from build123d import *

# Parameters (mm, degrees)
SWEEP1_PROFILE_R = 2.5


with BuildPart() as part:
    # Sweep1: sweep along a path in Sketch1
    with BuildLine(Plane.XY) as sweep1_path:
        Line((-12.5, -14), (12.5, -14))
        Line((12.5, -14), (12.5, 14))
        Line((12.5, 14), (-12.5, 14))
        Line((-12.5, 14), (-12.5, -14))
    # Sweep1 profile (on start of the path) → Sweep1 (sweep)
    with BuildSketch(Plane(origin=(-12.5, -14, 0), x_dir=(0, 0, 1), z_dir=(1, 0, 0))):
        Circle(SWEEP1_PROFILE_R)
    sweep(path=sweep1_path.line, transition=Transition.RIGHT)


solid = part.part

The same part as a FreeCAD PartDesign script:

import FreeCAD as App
import Part
import Sketcher
from FreeCAD import Vector

doc = App.newDocument("Part")
params = doc.addObject("Spreadsheet::Sheet", "Params")
for row, (alias, value) in enumerate([
    ("sketch1_diameter", "5 mm"),
    ("sketch2_width", "25 mm"),
    ("sketch2_height", "28 mm"),
], start=1):
    params.set(f"A{row}", alias)
    params.set(f"B{row}", "=" + value)
    params.setAlias(f"B{row}", alias)

body = doc.addObject("PartDesign::Body", "Body")

# Sketch on YZ plane
sketch1 = body.newObject("Sketcher::SketchObject", "Sketch")
sketch1.AttachmentSupport = (doc.getObject("YZ_Plane"), [""])
sketch1.MapMode = "FlatFace"
sketch1.AttachmentOffset = App.Placement(Vector(0, 0, -12.5), App.Rotation())
sketch1.addGeometry(Part.Circle(Vector(-14, 0, 0), Vector(0, 0, 1), 2.5), False)
sketch1.addConstraint(Sketcher.Constraint("PointOnObject", 0, 3, -1))
sketch1.addConstraint(Sketcher.Constraint("Diameter", 0, 5.0))
sketch1.addConstraint(Sketcher.Constraint("DistanceX", 0, 3, -1, 1, 14.0))
sketch1.setExpression("Constraints[1]", "Params.sketch1_diameter")

# Sketch on XY plane
sketch2 = body.newObject("Sketcher::SketchObject", "Sketch001")
sketch2.AttachmentSupport = (doc.getObject("XY_Plane"), [""])
sketch2.MapMode = "FlatFace"
sketch2.addGeometry(Part.LineSegment(Vector(-12, -14, 0), Vector(12, -14, 0)), False)
sketch2.addGeometry(Part.LineSegment(Vector(12, -14, 0), Vector(12, 14, 0)), False)
sketch2.addGeometry(Part.LineSegment(Vector(12, 14, 0), Vector(-12, 14, 0)), False)
sketch2.addGeometry(Part.LineSegment(Vector(-12, 14, 0), Vector(-12, -14, 0)), False)
sketch2.addConstraint(Sketcher.Constraint("Coincident", 0, 2, 1, 1))
sketch2.addConstraint(Sketcher.Constraint("Coincident", 1, 2, 2, 1))
sketch2.addConstraint(Sketcher.Constraint("Coincident", 2, 2, 3, 1))
sketch2.addConstraint(Sketcher.Constraint("Coincident", 3, 2, 0, 1))
sketch2.addConstraint(Sketcher.Constraint("Horizontal", 0))
sketch2.addConstraint(Sketcher.Constraint("Vertical", 1))
sketch2.addConstraint(Sketcher.Constraint("Horizontal", 2))
sketch2.addConstraint(Sketcher.Constraint("Vertical", 3))
sketch2.addConstraint(Sketcher.Constraint("Symmetric", 0, 2, 2, 2, -1, 1))
sketch2.addConstraint(Sketcher.Constraint("DistanceX", 0, 1, 0, 2, 25.0))
sketch2.addConstraint(Sketcher.Constraint("DistanceY", 1, 1, 1, 2, 28.0))
sketch2.setExpression("Constraints[9]", "Params.sketch2_width")
sketch2.setExpression("Constraints[10]", "Params.sketch2_height")
doc.recompute()

additivepipe = body.newObject("PartDesign::AdditivePipe", "AdditivePipe")
additivepipe.Profile = sketch1
additivepipe.Spine = (sketch2, ["Edge1", "Edge2", "Edge3", "Edge4"])
additivepipe.Transition = "Right corner"

doc.recompute()
